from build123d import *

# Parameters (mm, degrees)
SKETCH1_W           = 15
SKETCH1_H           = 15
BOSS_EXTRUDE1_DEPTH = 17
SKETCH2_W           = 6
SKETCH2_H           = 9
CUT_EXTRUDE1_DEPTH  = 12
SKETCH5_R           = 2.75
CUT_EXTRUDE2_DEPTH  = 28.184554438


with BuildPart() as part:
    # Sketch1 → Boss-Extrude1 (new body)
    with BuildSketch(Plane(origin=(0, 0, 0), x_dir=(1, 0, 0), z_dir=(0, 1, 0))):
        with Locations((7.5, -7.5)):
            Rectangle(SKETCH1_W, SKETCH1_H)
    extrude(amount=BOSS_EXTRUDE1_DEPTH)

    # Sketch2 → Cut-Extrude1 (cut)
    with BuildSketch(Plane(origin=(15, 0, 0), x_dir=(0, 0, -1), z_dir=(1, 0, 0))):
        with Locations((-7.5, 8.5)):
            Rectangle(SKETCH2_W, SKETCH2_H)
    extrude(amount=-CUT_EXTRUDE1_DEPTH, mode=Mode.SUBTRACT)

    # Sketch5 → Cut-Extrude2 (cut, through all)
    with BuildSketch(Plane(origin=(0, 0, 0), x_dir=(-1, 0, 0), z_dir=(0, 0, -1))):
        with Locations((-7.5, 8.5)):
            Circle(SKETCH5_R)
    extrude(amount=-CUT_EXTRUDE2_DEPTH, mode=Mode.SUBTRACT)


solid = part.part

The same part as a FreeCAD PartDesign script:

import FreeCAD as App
import Part
import Sketcher
from FreeCAD import Vector
Q = App.Units.Quantity

doc = App.newDocument("Part")
body = doc.addObject("PartDesign::Body", "Body")

# Sketch on XZ plane
sketch1 = body.newObject("Sketcher::SketchObject", "Sketch")
sketch1.AttachmentSupport = (doc.getObject("XZ_Plane"), [""])
sketch1.MapMode = "FlatFace"
sketch1.addGeometry([
    Part.LineSegment(Vector(0, 0, 0), Vector(0, 15, 0)),
    Part.LineSegment(Vector(0, 15, 0), Vector(15, 15, 0)),
    Part.LineSegment(Vector(15, 15, 0), Vector(15, 0, 0)),
    Part.LineSegment(Vector(15, 0, 0), Vector(0, 0, 0)),
], False)
sketch1.addConstraint([
    Sketcher.Constraint("Coincident", 0, 2, 1, 1),
    Sketcher.Constraint("Coincident", 1, 2, 2, 1),
    Sketcher.Constraint("Coincident", 2, 2, 3, 1),
    Sketcher.Constraint("Coincident", 3, 2, 0, 1),
    Sketcher.Constraint("Vertical", 0),
    Sketcher.Constraint("Horizontal", 1),
    Sketcher.Constraint("Vertical", 2),
    Sketcher.Constraint("Horizontal", 3),
    Sketcher.Constraint("Coincident", 3, 2, -1, 1),
    Sketcher.Constraint("Equal", 3, 0),
    Sketcher.Constraint("DistanceX", 1, 1, 1, 2, Q("15 mm")),
])
pad1 = body.newObject("PartDesign::Pad", "Pad")
pad1.Profile = sketch1
pad1.Length = 17
pad1.Reversed = True

# Sketch on YZ plane
sketch2 = body.newObject("Sketcher::SketchObject", "Sketch001")
sketch2.AttachmentSupport = (doc.getObject("YZ_Plane"), [""])
sketch2.MapMode = "FlatFace"
sketch2.AttachmentOffset = App.Placement(Vector(0, 0, 15), App.Rotation())
sketch2.addGeometry([
    Part.LineSegment(Vector(13, 10, 0), Vector(4, 10, 0)),
    Part.LineSegment(Vector(4, 10, 0), Vector(4, 4, 0)),
    Part.LineSegment(Vector(4, 4, 0), Vector(13, 4, 0)),
    Part.LineSegment(Vector(13, 4, 0), Vector(13, 10, 0)),
], False)
sketch2.addConstraint([
    Sketcher.Constraint("Coincident", 0, 2, 1, 1),
    Sketcher.Constraint("Coincident", 1, 2, 2, 1),
    Sketcher.Constraint("Coincident", 2, 2, 3, 1),
    Sketcher.Constraint("Coincident", 3, 2, 0, 1),
    Sketcher.Constraint("Horizontal", 0),
    Sketcher.Constraint("Vertical", 1),
    Sketcher.Constraint("Horizontal", 2),
    Sketcher.Constraint("Vertical", 3),
    Sketcher.Constraint("DistanceX", 0, 2, 0, 1, Q("9 mm")),
    Sketcher.Constraint("DistanceY", 1, 2, 1, 1, Q("6 mm")),
    Sketcher.Constraint("DistanceX", -1, 1, 0, 2, Q("4 mm")),
    Sketcher.Constraint("DistanceY", -1, 1, 0, 2, Q("10.5 mm")),
])
pocket1 = body.newObject("PartDesign::Pocket", "Pocket")
pocket1.Profile = sketch2
pocket1.Length = 12

# Sketch on XY plane
sketch3 = body.newObject("Sketcher::SketchObject", "Sketch002")
sketch3.AttachmentSupport = (doc.getObject("XY_Plane"), [""])
sketch3.MapMode = "FlatFace"
sketch3.addGeometry(Part.Circle(Vector(7.5, 8.5, 0), Vector(0, 0, 1), 2.8), False)
sketch3.addConstraint([
    Sketcher.Constraint("Diameter", 0, Q("5.5 mm")),
    Sketcher.Constraint("DistanceX", -1, 1, 0, 3, Q("7.5 mm")),
    Sketcher.Constraint("DistanceY", -1, 1, 0, 3, Q("8.5 mm")),
])
pocket2 = body.newObject("PartDesign::Pocket", "Pocket001")
pocket2.Profile = sketch3
pocket2.Type = "ThroughAll"
pocket2.Reversed = True

doc.recompute()
